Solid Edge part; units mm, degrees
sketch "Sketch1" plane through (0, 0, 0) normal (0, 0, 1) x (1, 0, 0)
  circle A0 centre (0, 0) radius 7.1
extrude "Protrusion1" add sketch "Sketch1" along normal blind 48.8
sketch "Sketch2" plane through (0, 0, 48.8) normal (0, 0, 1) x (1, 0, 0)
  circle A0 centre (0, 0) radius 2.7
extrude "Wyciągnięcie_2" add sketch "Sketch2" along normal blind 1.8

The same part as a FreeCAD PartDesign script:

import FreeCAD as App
import Part
import Sketcher
from FreeCAD import Vector

doc = App.newDocument("Part")
body = doc.addObject("PartDesign::Body", "Body")

sketch1 = body.newObject("Sketcher::SketchObject", "Sketch")
sketch1.AttachmentSupport = (doc.getObject("XY_Plane"), [""])
sketch1.MapMode = "FlatFace"
sketch1.addGeometry(Part.Circle(Vector(0, 0, 0), Vector(0, 0, 1), 7.1), False)
sketch1.addConstraint([
    Sketcher.Constraint("Coincident", 0, 3, -1, 1),
    Sketcher.Constraint("Diameter", 0, 14.2),
])
pad1 = body.newObject("PartDesign::Pad", "Pad")
pad1.Profile = sketch1
pad1.Length = 48.8

sketch2 = body.newObject("Sketcher::SketchObject", "Sketch001")
sketch2.AttachmentSupport = (doc.getObject("XY_Plane"), [""])
sketch2.MapMode = "FlatFace"
sketch2.AttachmentOffset = App.Placement(Vector(0, 0, 48.8), App.Rotation())
sketch2.addGeometry(Part.Circle(Vector(0, 0, 0), Vector(0, 0, 1), 2.7), False)
sketch2.addConstraint([
    Sketcher.Constraint("Coincident", 0, 3, -1, 1),
    Sketcher.Constraint("Diameter", 0, 5.4),
])
pad2 = body.newObject("PartDesign::Pad", "Pad001")
pad2.Profile = sketch2
pad2.Length = 1.8

doc.recompute()
